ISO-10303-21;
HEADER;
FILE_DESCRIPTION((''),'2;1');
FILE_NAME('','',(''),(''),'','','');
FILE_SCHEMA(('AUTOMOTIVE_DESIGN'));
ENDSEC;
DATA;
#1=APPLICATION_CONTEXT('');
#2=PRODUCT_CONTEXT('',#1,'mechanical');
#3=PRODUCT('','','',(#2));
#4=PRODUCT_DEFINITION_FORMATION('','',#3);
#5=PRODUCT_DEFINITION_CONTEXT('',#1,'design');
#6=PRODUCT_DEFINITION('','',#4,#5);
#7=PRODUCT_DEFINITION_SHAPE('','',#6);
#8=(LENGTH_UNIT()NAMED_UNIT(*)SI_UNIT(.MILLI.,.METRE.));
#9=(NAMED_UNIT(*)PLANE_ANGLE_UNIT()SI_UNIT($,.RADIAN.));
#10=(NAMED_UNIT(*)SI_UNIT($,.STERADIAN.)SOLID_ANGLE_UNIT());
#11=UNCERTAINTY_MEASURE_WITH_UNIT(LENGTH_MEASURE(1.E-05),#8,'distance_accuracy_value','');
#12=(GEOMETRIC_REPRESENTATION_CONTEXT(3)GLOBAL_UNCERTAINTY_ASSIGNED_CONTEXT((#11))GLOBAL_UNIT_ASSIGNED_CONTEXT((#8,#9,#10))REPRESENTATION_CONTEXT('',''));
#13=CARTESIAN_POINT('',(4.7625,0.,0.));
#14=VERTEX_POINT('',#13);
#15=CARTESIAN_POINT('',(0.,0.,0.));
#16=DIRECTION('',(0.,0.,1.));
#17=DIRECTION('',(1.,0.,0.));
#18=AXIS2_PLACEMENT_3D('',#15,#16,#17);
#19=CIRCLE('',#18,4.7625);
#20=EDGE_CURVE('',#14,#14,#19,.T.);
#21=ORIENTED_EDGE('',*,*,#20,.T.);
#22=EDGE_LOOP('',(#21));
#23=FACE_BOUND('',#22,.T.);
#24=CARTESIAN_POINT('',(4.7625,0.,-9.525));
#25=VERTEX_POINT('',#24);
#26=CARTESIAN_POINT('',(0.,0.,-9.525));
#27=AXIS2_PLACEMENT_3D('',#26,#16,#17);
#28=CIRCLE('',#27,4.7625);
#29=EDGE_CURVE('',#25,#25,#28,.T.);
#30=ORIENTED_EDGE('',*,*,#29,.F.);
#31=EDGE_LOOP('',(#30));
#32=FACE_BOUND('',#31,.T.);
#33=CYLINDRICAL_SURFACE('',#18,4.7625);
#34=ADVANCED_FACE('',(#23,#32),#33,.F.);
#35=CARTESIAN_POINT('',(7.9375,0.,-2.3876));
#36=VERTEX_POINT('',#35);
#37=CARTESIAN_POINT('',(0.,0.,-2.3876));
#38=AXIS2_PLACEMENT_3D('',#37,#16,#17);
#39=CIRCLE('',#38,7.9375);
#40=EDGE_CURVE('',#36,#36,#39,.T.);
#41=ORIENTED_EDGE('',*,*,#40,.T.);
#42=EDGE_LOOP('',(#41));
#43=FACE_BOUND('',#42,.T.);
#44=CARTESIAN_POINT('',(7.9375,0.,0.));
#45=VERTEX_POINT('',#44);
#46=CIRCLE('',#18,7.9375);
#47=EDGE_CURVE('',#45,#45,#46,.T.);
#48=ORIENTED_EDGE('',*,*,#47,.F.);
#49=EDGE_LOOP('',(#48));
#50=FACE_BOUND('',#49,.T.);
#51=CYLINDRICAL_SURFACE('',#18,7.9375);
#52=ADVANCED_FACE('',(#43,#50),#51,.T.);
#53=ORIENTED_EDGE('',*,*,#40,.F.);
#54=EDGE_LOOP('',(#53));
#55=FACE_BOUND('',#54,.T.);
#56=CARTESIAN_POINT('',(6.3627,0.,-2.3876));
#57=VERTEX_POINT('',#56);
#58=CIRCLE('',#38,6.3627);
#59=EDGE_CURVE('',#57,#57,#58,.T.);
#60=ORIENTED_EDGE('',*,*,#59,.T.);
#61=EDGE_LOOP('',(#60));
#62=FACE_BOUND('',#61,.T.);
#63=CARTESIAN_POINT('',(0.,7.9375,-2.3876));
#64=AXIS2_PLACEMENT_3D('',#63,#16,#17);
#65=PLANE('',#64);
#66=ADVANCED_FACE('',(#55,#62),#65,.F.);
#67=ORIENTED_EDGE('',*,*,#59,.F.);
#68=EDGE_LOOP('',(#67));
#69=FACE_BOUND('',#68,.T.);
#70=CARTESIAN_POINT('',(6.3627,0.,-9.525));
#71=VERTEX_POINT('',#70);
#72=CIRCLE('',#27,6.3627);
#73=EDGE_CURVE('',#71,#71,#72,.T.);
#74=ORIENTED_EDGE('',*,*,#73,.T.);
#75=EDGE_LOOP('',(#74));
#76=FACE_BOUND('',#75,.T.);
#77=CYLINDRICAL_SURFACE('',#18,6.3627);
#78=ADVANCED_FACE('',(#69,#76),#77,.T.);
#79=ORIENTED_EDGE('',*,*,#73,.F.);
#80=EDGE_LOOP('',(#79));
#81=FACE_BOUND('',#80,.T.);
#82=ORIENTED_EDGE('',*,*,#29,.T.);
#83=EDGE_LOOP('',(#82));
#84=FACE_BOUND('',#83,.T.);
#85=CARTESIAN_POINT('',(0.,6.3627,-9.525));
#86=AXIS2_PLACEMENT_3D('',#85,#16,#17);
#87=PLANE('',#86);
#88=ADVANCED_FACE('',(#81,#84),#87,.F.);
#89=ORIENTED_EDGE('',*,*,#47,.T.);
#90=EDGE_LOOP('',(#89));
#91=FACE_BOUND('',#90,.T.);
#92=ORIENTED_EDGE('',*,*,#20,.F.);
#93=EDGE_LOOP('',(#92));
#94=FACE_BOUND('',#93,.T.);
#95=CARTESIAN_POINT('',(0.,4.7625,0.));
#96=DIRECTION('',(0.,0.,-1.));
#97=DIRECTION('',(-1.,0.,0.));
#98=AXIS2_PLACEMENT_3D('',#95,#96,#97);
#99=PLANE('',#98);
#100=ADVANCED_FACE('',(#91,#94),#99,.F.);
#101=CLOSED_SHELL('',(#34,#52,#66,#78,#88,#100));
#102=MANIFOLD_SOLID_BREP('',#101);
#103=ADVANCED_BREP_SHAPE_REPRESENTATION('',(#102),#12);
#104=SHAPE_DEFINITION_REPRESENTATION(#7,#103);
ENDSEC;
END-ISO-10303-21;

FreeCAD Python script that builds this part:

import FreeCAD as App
import Part
import Sketcher
from FreeCAD import Vector
Q = App.Units.Quantity


def add_polygon(sketch, points):
    """Adds a closed chain of lines whose ends are joined by coincident constraints."""
    first, n = sketch.GeometryCount, len(points)
    for a, b in zip(points, points[1:] + points[:1]):
        sketch.addGeometry(Part.LineSegment(App.Vector(*a, 0), App.Vector(*b, 0)), False)
    for i in range(n):
        sketch.addConstraint(Sketcher.Constraint("Coincident", first + i, 2, first + (i + 1) % n, 1))

doc = App.newDocument("Part")
body = doc.addObject("PartDesign::Body", "Body")

# Sketch on YZ plane
sketch1 = body.newObject("Sketcher::SketchObject", "Sketch")
sketch1.AttachmentSupport = (doc.getObject("YZ_Plane"), [""])
sketch1.MapMode = "FlatFace"
add_polygon(sketch1, [(7.9, 0), (4.8, 0), (4.8, -9.5), (6.4, -9.5), (6.4, -2.4), (7.9, -2.4)])  # lines 0-5
sketch1.addConstraint(Sketcher.Constraint("Horizontal", 0))
sketch1.addConstraint(Sketcher.Constraint("Vertical", 1))
sketch1.addConstraint(Sketcher.Constraint("Horizontal", 2))
sketch1.addConstraint(Sketcher.Constraint("Vertical", 3))
sketch1.addConstraint(Sketcher.Constraint("Horizontal", 4))
sketch1.addConstraint(Sketcher.Constraint("Vertical", 5))
sketch1.addConstraint(Sketcher.Constraint("PointOnObject", 0, 2, -1))
sketch1.addConstraint(Sketcher.Constraint("DistanceX", 0, 2, 0, 1, Q("0.125 in")))
sketch1.addConstraint(Sketcher.Constraint("DistanceX", 2, 1, 2, 2, Q("0.063 in")))
sketch1.addConstraint(Sketcher.Constraint("DistanceY", 1, 2, 1, 1, Q("0.375 in")))
sketch1.addConstraint(Sketcher.Constraint("DistanceY", 3, 1, 3, 2, Q("0.281 in")))
sketch1.addConstraint(Sketcher.Constraint("DistanceX", -1, 1, 0, 2, Q("0.1875 in")))
revolution = body.newObject("PartDesign::Revolution", "Revolution")
revolution.Profile = sketch1
revolution.ReferenceAxis = (sketch1, ["V_Axis"])
revolution.Angle = 360

doc.recompute()
